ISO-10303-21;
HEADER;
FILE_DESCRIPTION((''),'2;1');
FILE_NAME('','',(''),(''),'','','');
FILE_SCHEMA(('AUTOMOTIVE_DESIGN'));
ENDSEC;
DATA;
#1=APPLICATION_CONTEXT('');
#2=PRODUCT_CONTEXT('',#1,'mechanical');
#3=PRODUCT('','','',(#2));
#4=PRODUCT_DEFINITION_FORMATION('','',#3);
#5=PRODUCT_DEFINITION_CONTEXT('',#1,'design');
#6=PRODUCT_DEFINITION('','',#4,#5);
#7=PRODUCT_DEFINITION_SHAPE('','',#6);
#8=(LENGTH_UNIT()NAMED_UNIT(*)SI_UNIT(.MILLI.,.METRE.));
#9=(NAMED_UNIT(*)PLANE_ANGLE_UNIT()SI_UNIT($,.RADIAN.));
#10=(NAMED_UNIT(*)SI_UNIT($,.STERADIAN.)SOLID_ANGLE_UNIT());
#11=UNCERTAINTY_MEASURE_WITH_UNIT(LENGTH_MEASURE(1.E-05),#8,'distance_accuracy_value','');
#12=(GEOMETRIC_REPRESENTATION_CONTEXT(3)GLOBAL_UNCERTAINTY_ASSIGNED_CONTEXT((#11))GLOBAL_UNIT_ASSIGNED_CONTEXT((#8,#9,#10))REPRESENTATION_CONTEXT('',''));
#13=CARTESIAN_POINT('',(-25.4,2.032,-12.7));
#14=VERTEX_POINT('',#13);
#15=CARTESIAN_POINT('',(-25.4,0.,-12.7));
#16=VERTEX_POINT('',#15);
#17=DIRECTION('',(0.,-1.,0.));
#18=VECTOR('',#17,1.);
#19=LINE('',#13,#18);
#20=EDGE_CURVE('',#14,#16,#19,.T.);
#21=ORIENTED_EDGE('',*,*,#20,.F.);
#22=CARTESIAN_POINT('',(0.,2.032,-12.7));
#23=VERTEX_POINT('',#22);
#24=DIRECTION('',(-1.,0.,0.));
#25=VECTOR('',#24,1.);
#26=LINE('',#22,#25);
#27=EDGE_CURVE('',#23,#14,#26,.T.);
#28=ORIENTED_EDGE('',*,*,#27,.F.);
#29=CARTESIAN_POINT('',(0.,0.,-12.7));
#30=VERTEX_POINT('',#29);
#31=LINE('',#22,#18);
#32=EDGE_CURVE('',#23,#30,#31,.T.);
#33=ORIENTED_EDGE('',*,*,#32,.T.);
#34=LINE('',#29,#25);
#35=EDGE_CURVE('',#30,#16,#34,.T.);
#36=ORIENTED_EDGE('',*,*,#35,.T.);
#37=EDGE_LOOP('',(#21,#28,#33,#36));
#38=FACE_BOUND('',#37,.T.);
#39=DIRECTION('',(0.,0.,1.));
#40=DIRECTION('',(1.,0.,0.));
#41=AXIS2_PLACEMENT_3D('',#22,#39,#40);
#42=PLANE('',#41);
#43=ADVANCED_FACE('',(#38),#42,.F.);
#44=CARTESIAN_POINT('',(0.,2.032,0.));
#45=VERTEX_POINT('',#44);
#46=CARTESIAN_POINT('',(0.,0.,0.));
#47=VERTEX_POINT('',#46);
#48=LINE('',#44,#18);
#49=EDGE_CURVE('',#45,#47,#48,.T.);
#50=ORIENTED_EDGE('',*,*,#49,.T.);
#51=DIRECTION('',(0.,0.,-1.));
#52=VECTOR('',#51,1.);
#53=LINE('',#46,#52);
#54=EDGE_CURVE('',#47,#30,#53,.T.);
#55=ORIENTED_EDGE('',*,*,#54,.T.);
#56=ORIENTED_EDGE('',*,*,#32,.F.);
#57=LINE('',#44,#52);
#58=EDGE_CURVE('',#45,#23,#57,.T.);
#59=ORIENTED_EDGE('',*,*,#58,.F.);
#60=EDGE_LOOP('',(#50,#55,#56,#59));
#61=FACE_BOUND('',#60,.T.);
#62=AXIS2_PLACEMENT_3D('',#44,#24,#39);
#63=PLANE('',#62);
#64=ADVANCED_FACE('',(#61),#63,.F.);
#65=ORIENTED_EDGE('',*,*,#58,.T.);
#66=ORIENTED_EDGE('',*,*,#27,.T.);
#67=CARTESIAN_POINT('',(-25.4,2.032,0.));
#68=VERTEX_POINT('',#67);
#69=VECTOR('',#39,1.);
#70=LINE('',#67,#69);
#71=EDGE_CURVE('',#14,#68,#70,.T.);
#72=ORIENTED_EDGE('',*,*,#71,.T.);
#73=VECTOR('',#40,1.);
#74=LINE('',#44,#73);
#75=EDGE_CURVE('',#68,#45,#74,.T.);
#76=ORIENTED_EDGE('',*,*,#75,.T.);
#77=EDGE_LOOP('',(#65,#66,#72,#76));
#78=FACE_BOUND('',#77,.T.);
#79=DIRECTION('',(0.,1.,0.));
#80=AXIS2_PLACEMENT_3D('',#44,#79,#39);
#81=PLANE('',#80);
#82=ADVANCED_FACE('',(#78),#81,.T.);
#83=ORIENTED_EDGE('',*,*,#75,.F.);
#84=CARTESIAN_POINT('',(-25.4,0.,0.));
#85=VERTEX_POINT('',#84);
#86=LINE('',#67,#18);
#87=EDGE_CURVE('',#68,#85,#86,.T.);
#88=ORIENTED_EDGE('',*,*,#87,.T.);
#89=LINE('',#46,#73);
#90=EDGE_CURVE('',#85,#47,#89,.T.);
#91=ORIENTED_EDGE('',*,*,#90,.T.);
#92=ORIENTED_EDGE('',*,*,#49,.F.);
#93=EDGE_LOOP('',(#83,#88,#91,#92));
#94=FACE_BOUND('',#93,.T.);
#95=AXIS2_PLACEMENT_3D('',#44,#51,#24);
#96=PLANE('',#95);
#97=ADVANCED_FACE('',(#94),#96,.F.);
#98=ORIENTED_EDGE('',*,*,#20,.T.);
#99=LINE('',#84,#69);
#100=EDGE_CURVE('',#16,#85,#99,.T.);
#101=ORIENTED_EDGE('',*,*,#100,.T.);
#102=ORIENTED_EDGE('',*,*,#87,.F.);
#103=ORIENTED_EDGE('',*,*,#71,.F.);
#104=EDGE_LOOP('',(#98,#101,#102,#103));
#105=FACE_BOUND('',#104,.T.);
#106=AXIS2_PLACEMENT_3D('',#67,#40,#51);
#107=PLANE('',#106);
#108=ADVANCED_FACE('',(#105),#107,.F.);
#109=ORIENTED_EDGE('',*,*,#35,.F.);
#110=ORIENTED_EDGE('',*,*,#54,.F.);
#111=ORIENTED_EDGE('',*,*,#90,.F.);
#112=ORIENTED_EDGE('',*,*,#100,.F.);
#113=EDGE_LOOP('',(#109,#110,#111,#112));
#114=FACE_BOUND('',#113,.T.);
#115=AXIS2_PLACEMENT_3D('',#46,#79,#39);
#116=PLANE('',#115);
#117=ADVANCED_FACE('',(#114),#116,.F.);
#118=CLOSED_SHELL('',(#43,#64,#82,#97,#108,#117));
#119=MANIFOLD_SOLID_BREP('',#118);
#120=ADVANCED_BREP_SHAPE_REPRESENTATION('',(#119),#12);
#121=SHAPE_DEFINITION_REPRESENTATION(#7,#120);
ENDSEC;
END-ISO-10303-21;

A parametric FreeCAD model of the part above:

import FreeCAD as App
import Part
import Sketcher
from FreeCAD import Vector
Q = App.Units.Quantity


def add_polygon(sketch, points):
    """Adds a closed chain of lines whose ends are joined by coincident constraints."""
    first, n = sketch.GeometryCount, len(points)
    for a, b in zip(points, points[1:] + points[:1]):
        sketch.addGeometry(Part.LineSegment(App.Vector(*a, 0), App.Vector(*b, 0)), False)
    for i in range(n):
        sketch.addConstraint(Sketcher.Constraint("Coincident", first + i, 2, first + (i + 1) % n, 1))

doc = App.newDocument("Part")
body = doc.addObject("PartDesign::Body", "Body")

sketch1 = body.newObject("Sketcher::SketchObject", "Sketch")
sketch1.AttachmentSupport = (doc.getObject("XZ_Plane"), [""])
sketch1.MapMode = "FlatFace"
add_polygon(sketch1, [(-25, -13), (-25, 0), (0, 0), (0, -13)])
sketch1.addConstraint([
    Sketcher.Constraint("Vertical", 0),
    Sketcher.Constraint("Horizontal", 1),
    Sketcher.Constraint("Vertical", 2),
    Sketcher.Constraint("Horizontal", 3),
    Sketcher.Constraint("Coincident", 1, 2, -1, 1),
    Sketcher.Constraint("DistanceX", 1, 1, 1, 2, Q("1 in")),
    Sketcher.Constraint("DistanceY", 0, 1, 0, 2, Q("0.5 in")),
])
pad1 = body.newObject("PartDesign::Pad", "Pad")
pad1.Profile = sketch1
pad1.Length = Q("0.08 in")
pad1.Reversed = True

doc.recompute()
